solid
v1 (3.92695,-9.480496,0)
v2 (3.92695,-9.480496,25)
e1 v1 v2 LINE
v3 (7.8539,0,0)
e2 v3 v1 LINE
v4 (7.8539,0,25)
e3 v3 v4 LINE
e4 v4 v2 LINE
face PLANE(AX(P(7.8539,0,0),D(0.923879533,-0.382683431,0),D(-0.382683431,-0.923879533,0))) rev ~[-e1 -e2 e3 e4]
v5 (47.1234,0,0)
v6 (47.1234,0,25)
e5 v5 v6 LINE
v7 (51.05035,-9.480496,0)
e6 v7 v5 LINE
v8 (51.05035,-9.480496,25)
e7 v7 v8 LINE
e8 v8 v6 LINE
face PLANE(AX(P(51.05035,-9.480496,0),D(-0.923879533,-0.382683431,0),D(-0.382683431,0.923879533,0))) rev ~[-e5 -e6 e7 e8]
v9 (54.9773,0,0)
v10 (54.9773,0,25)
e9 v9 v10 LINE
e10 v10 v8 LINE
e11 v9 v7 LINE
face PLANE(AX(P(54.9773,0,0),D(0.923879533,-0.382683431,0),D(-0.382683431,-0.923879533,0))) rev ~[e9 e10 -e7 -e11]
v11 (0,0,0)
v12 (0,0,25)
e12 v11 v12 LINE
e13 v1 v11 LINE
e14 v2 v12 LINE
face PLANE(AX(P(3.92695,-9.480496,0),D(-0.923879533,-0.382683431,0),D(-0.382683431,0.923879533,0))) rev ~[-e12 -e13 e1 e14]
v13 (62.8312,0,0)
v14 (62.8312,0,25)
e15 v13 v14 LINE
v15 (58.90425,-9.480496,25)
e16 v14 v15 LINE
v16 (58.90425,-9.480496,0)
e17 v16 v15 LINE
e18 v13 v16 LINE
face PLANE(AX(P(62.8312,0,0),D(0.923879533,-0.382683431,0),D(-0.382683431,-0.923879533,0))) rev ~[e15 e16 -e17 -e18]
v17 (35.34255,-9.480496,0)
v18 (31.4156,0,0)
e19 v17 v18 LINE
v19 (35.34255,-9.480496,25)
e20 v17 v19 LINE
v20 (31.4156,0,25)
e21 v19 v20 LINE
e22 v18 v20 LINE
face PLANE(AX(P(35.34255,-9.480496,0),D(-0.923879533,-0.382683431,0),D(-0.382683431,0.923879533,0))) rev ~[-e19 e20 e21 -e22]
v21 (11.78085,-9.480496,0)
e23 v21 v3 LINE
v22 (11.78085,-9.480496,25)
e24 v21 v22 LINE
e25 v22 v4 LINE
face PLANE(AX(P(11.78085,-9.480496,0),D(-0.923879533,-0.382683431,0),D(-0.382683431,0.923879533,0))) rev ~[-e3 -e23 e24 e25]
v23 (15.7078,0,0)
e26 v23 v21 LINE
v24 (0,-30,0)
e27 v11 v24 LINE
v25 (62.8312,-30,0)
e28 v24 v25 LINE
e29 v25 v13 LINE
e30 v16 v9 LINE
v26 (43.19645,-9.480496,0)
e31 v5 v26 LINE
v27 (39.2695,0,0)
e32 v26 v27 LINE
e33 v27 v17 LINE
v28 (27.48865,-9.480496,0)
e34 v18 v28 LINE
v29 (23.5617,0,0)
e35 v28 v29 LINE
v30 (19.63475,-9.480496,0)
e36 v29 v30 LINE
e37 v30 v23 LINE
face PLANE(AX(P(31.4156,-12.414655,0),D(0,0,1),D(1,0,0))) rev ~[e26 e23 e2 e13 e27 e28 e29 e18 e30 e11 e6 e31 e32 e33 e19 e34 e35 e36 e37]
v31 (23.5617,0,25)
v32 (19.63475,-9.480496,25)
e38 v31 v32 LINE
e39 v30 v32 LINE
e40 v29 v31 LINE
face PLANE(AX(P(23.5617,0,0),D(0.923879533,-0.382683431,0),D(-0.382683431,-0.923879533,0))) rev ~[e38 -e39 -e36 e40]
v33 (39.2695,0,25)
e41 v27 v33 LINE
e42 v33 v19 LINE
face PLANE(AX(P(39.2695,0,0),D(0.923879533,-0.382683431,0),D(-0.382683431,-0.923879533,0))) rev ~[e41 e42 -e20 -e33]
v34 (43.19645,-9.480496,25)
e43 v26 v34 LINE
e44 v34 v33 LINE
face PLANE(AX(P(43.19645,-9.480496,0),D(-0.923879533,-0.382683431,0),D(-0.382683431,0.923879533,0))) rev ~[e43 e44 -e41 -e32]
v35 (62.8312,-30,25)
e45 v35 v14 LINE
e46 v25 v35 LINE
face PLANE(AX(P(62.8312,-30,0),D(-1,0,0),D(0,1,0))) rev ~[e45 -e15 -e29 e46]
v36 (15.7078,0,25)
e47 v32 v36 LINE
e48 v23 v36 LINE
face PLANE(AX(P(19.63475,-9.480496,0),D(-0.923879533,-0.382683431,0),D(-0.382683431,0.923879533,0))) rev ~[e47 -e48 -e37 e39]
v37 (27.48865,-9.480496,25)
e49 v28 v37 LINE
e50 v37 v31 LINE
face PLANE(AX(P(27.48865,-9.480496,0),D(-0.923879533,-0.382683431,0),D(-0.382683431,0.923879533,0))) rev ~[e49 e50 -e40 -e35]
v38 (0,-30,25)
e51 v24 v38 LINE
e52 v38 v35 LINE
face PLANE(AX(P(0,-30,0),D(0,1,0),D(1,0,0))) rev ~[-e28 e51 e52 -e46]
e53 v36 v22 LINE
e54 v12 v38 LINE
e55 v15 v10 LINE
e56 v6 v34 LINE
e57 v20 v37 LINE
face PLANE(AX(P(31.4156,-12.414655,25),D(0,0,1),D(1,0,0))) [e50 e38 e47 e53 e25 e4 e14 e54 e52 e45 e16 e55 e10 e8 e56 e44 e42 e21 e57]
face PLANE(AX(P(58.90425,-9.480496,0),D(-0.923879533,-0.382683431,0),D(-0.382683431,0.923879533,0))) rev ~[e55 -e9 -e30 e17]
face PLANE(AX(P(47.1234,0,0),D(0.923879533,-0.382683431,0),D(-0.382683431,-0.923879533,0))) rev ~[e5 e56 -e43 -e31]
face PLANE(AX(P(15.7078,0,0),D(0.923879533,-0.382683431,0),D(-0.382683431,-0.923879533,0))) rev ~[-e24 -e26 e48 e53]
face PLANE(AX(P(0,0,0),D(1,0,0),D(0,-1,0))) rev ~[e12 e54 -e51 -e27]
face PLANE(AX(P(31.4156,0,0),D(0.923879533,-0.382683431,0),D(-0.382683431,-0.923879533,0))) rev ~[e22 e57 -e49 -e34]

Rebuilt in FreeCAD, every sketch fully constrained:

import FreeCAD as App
import Part
import Sketcher

V = App.Vector
Q = App.Units.Quantity

doc = App.newDocument("Part")
body = doc.addObject("PartDesign::Body", "Body")

sketch1 = body.newObject("Sketcher::SketchObject", "Sketch")
sketch1.AttachmentSupport = (doc.getObject("XY_Plane"), [""])
sketch1.MapMode = "FlatFace"
sketch1.addGeometry([
    Part.LineSegment(V(3.92695, -9.480496, 0), V(0, 0, 0)),
    Part.LineSegment(V(0, 0, 0), V(0, -30, 0)),
    Part.LineSegment(V(0, -30, 0), V(62.8312, -30, 0)),
    Part.LineSegment(V(62.8312, -30, 0), V(62.8312, 0, 0)),
    Part.LineSegment(V(62.8312, 0, 0), V(58.90425, -9.480496, 0)),
    Part.LineSegment(V(58.90425, -9.480496, 0), V(54.9773, 0, 0)),
    Part.LineSegment(V(54.9773, 0, 0), V(51.05035, -9.480496, 0)),
    Part.LineSegment(V(51.05035, -9.480496, 0), V(47.1234, 0, 0)),
    Part.LineSegment(V(47.1234, 0, 0), V(43.19645, -9.480496, 0)),
    Part.LineSegment(V(43.19645, -9.480496, 0), V(39.2695, 0, 0)),
    Part.LineSegment(V(39.2695, 0, 0), V(35.34255, -9.480496, 0)),
    Part.LineSegment(V(35.34255, -9.480496, 0), V(31.4156, 0, 0)),
    Part.LineSegment(V(31.4156, 0, 0), V(27.48865, -9.480496, 0)),
    Part.LineSegment(V(27.48865, -9.480496, 0), V(23.5617, 0, 0)),
    Part.LineSegment(V(23.5617, 0, 0), V(19.63475, -9.480496, 0)),
    Part.LineSegment(V(19.63475, -9.480496, 0), V(15.7078, 0, 0)),
    Part.LineSegment(V(15.7078, 0, 0), V(11.78085, -9.480496, 0)),
    Part.LineSegment(V(11.78085, -9.480496, 0), V(7.8539, 0, 0)),
    Part.LineSegment(V(7.8539, 0, 0), V(3.92695, -9.480496, 0)),
], False)
sketch1.addConstraint([
    Sketcher.Constraint("Coincident", 0, 2, 1, 1),
    Sketcher.Constraint("Coincident", 1, 2, 2, 1),
    Sketcher.Constraint("Coincident", 2, 2, 3, 1),
    Sketcher.Constraint("Coincident", 3, 2, 4, 1),
    Sketcher.Constraint("Coincident", 4, 2, 5, 1),
    Sketcher.Constraint("Coincident", 5, 2, 6, 1),
    Sketcher.Constraint("Coincident", 6, 2, 7, 1),
    Sketcher.Constraint("Coincident", 7, 2, 8, 1),
    Sketcher.Constraint("Coincident", 8, 2, 9, 1),
    Sketcher.Constraint("Coincident", 9, 2, 10, 1),
    Sketcher.Constraint("Coincident", 10, 2, 11, 1),
    Sketcher.Constraint("Coincident", 11, 2, 12, 1),
    Sketcher.Constraint("Coincident", 12, 2, 13, 1),
    Sketcher.Constraint("Coincident", 13, 2, 14, 1),
    Sketcher.Constraint("Coincident", 14, 2, 15, 1),
    Sketcher.Constraint("Coincident", 15, 2, 16, 1),
    Sketcher.Constraint("Coincident", 16, 2, 17, 1),
    Sketcher.Constraint("Coincident", 17, 2, 18, 1),
    Sketcher.Constraint("Coincident", 18, 2, 0, 1),
    Sketcher.Constraint("Vertical", 1),
    Sketcher.Constraint("Horizontal", 2),
    Sketcher.Constraint("Vertical", 3),
    Sketcher.Constraint("Coincident", 0, 2, -1, 1),
    Sketcher.Constraint("PointOnObject", 3, 2, -1),
    Sketcher.Constraint("PointOnObject", 5, 2, -1),
    Sketcher.Constraint("PointOnObject", 7, 2, -1),
    Sketcher.Constraint("PointOnObject", 9, 2, -1),
    Sketcher.Constraint("PointOnObject", 11, 2, -1),
    Sketcher.Constraint("PointOnObject", 13, 2, -1),
    Sketcher.Constraint("PointOnObject", 15, 2, -1),
    Sketcher.Constraint("PointOnObject", 17, 2, -1),
    Sketcher.Constraint("Parallel", 0, 5),
    Sketcher.Constraint("Parallel", 4, 6),
    Sketcher.Constraint("Parallel", 5, 7),
    Sketcher.Constraint("Parallel", 6, 8),
    Sketcher.Constraint("Parallel", 7, 9),
    Sketcher.Constraint("Parallel", 8, 10),
    Sketcher.Constraint("Parallel", 9, 11),
    Sketcher.Constraint("Parallel", 10, 12),
    Sketcher.Constraint("Parallel", 11, 13),
    Sketcher.Constraint("Parallel", 12, 14),
    Sketcher.Constraint("Parallel", 13, 15),
    Sketcher.Constraint("Parallel", 14, 16),
    Sketcher.Constraint("Parallel", 15, 17),
    Sketcher.Constraint("Parallel", 16, 18),
    Sketcher.Constraint("Horizontal", 4, 2, 6, 2),
    Sketcher.Constraint("Horizontal", 6, 2, 8, 2),
    Sketcher.Constraint("Horizontal", 8, 2, 10, 2),
    Sketcher.Constraint("Horizontal", 10, 2, 12, 2),
    Sketcher.Constraint("Horizontal", 12, 2, 14, 2),
    Sketcher.Constraint("Horizontal", 14, 2, 16, 2),
    Sketcher.Constraint("Horizontal", 16, 2, 18, 2),
    Sketcher.Constraint("Equal", 0, 4),
    Sketcher.Constraint("DistanceY", 1, 2, 1, 1, Q("30 mm")),
    Sketcher.Constraint("Angle", 0, Q("112.5 deg")),
    Sketcher.Constraint("DistanceX", 2, 1, 2, 2, Q("62.8312 mm")),
])
pad1 = body.newObject("PartDesign::Pad", "Pad")
pad1.Profile = sketch1
pad1.Length = 25

doc.recompute()
